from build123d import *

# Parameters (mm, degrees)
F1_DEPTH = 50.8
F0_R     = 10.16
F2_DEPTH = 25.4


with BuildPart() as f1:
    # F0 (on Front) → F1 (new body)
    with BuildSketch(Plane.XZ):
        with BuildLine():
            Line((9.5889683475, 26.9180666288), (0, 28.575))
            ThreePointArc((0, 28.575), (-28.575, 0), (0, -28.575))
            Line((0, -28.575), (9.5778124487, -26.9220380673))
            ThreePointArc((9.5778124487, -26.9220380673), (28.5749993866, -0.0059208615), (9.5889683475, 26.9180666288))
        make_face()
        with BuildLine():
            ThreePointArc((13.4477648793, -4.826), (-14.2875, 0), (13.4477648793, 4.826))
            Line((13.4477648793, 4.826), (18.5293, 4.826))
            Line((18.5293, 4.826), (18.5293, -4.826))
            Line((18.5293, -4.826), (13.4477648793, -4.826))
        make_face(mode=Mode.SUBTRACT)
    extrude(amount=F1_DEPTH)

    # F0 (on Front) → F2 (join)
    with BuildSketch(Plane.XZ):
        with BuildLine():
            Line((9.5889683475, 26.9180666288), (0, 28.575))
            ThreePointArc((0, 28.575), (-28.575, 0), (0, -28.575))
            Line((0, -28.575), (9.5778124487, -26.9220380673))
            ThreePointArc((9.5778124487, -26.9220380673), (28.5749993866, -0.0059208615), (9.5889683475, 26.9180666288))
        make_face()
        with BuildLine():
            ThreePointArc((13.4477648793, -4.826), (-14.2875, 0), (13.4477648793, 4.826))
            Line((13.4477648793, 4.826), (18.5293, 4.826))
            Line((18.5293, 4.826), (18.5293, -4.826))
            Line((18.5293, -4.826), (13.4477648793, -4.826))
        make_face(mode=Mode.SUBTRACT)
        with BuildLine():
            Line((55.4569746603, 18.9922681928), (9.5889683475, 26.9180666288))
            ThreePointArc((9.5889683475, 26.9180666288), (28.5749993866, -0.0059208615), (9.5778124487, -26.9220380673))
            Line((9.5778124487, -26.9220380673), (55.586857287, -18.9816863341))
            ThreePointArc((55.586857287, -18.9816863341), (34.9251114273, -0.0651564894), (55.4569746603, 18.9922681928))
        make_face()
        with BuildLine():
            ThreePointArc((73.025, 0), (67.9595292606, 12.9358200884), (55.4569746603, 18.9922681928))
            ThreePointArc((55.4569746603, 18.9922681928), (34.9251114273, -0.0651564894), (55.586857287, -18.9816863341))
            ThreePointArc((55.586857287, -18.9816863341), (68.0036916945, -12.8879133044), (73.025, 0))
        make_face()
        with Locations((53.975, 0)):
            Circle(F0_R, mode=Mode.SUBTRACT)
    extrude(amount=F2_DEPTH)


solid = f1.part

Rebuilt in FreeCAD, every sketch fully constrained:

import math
import FreeCAD as App
import Part
import Sketcher
from FreeCAD import Vector
Q = App.Units.Quantity

doc = App.newDocument("Part")
body = doc.addObject("PartDesign::Body", "Body")

sketch1 = body.newObject("Sketcher::SketchObject", "Sketch")
sketch1.AttachmentSupport = (doc.getObject("XZ_Plane"), [""])
sketch1.MapMode = "FlatFace"
sketch1.addGeometry([
    Part.LineSegment(Vector(10, 27, 0), Vector(0, 29, 0)),
    Part.ArcOfCircle(Part.Circle(Vector(0, 0, 0), Vector(0, 0, 1), 29), math.radians(90), math.radians(270)),
    Part.LineSegment(Vector(0, -29, 0), Vector(10, -27, 0)),
    Part.ArcOfCircle(Part.Circle(Vector(0, 0, 0), Vector(0, 0, 1), 29), math.radians(-70), math.radians(70)),
    Part.LineSegment(Vector(19, -5, 0), Vector(13, -5, 0)),
    Part.ArcOfCircle(Part.Circle(Vector(0, 0, 0), Vector(0, 0, 1), 14), math.radians(20), math.radians(340)),
    Part.LineSegment(Vector(13, 5, 0), Vector(19, 5, 0)),
    Part.LineSegment(Vector(19, 5, 0), Vector(19, -5, 0)),
], False)
sketch1.addConstraint([
    Sketcher.Constraint("Coincident", 0, 2, 1, 1),
    Sketcher.Constraint("Coincident", 1, 2, 2, 1),
    Sketcher.Constraint("Coincident", 2, 2, 3, 1),
    Sketcher.Constraint("Coincident", 3, 2, 0, 1),
    Sketcher.Constraint("Coincident", 4, 2, 5, 2),
    Sketcher.Constraint("Coincident", 5, 1, 6, 1),
    Sketcher.Constraint("Coincident", 6, 2, 7, 1),
    Sketcher.Constraint("Coincident", 7, 2, 4, 1),
    Sketcher.Constraint("Horizontal", 4),
    Sketcher.Constraint("Horizontal", 6),
    Sketcher.Constraint("Vertical", 7),
    Sketcher.Constraint("Coincident", 1, 3, -1, 1),
    Sketcher.Constraint("Coincident", 3, 3, -1, 1),
    Sketcher.Constraint("Coincident", 5, 3, -1, 1),
    Sketcher.Constraint("Equal", 1, 3),
    Sketcher.Constraint("PointOnObject", 0, 2, -2),
    Sketcher.Constraint("PointOnObject", 1, 2, -2),
    Sketcher.Constraint("Vertical", 4, 2, 5, 1),
    Sketcher.Constraint("Radius", 1, Q("1.125 in")),
    Sketcher.Constraint("Radius", 5, Q("0.5625 in")),
    Sketcher.Constraint("DistanceY", 7, 2, 7, 1, Q("0.38 in")),
    Sketcher.Constraint("DistanceX", -1, 1, 6, 2, Q("0.7295 in")),
    Sketcher.Constraint("Distance", 2, 9.719402),
    Sketcher.Constraint("Distance", 0, 9.731071),
])
pad1 = body.newObject("PartDesign::Pad", "Pad")
pad1.Profile = sketch1
pad1.Length = Q("2 in")

sketch2 = body.newObject("Sketcher::SketchObject", "Sketch001")
sketch2.AttachmentSupport = (doc.getObject("XZ_Plane"), [""])
sketch2.MapMode = "FlatFace"
sketch2.addGeometry([
    Part.LineSegment(Vector(10, 27, 0), Vector(0, 29, 0)),
    Part.ArcOfCircle(Part.Circle(Vector(0, 0, 0), Vector(0, 0, 1), 29), math.radians(90), math.radians(270)),
    Part.LineSegment(Vector(0, -29, 0), Vector(56, -19, 0)),
    Part.ArcOfCircle(Part.Circle(Vector(54, 0, 0), Vector(0, 0, 1), 19), math.radians(-85), math.radians(0)),
    Part.ArcOfCircle(Part.Circle(Vector(54, 0, 0), Vector(0, 0, 1), 19), math.radians(0), math.radians(86)),
    Part.LineSegment(Vector(55, 19, 0), Vector(10, 27, 0)),
    Part.LineSegment(Vector(19, -5, 0), Vector(13, -5, 0)),
    Part.ArcOfCircle(Part.Circle(Vector(0, 0, 0), Vector(0, 0, 1), 14), math.radians(20), math.radians(340)),
    Part.LineSegment(Vector(13, 5, 0), Vector(19, 5, 0)),
    Part.LineSegment(Vector(19, 5, 0), Vector(19, -5, 0)),
    Part.Circle(Vector(54, 0, 0), Vector(0, 0, 1), 10),
], False)
sketch2.addConstraint([
    Sketcher.Constraint("Coincident", 0, 2, 1, 1),
    Sketcher.Constraint("Coincident", 1, 2, 2, 1),
    Sketcher.Constraint("Coincident", 2, 2, 3, 1),
    Sketcher.Constraint("Tangent", 3, 2, 4, 1),
    Sketcher.Constraint("Coincident", 4, 2, 5, 1),
    Sketcher.Constraint("Coincident", 5, 2, 0, 1),
    Sketcher.Constraint("Coincident", 6, 2, 7, 2),
    Sketcher.Constraint("Coincident", 7, 1, 8, 1),
    Sketcher.Constraint("Coincident", 8, 2, 9, 1),
    Sketcher.Constraint("Coincident", 9, 2, 6, 1),
    Sketcher.Constraint("Horizontal", 6),
    Sketcher.Constraint("Horizontal", 8),
    Sketcher.Constraint("Vertical", 9),
    Sketcher.Constraint("Coincident", 1, 3, -1, 1),
    Sketcher.Constraint("Coincident", 7, 3, -1, 1),
    Sketcher.Constraint("Coincident", 10, 3, 3, 3),
    Sketcher.Constraint("Equal", 3, 4),
    Sketcher.Constraint("PointOnObject", 3, 3, -1),
    Sketcher.Constraint("PointOnObject", 0, 2, -2),
    Sketcher.Constraint("PointOnObject", 1, 2, -2),
    Sketcher.Constraint("PointOnObject", 3, 2, -1),
    Sketcher.Constraint("Parallel", 0, 5),
    Sketcher.Constraint("Vertical", 6, 2, 7, 1),
    Sketcher.Constraint("Diameter", 10, Q("0.8 in")),
    Sketcher.Constraint("Radius", 3, Q("0.75 in")),
    Sketcher.Constraint("Radius", 1, Q("1.125 in")),
    Sketcher.Constraint("Radius", 7, Q("0.5625 in")),
    Sketcher.Constraint("DistanceY", 9, 2, 9, 1, Q("0.38 in")),
    Sketcher.Constraint("DistanceX", -1, 1, 3, 3, Q("2.125 in")),
    Sketcher.Constraint("DistanceX", -1, 1, 8, 2, Q("0.7295 in")),
    Sketcher.Constraint("Distance", 2, 56.408602),
    Sketcher.Constraint("DistanceY", 4, 2, 5, 2, 7.925798),
    Sketcher.Constraint("Distance", 0, 9.731071),
])
pad2 = body.newObject("PartDesign::Pad", "Pad001")
pad2.Profile = sketch2
pad2.Length = Q("1 in")

doc.recompute()
